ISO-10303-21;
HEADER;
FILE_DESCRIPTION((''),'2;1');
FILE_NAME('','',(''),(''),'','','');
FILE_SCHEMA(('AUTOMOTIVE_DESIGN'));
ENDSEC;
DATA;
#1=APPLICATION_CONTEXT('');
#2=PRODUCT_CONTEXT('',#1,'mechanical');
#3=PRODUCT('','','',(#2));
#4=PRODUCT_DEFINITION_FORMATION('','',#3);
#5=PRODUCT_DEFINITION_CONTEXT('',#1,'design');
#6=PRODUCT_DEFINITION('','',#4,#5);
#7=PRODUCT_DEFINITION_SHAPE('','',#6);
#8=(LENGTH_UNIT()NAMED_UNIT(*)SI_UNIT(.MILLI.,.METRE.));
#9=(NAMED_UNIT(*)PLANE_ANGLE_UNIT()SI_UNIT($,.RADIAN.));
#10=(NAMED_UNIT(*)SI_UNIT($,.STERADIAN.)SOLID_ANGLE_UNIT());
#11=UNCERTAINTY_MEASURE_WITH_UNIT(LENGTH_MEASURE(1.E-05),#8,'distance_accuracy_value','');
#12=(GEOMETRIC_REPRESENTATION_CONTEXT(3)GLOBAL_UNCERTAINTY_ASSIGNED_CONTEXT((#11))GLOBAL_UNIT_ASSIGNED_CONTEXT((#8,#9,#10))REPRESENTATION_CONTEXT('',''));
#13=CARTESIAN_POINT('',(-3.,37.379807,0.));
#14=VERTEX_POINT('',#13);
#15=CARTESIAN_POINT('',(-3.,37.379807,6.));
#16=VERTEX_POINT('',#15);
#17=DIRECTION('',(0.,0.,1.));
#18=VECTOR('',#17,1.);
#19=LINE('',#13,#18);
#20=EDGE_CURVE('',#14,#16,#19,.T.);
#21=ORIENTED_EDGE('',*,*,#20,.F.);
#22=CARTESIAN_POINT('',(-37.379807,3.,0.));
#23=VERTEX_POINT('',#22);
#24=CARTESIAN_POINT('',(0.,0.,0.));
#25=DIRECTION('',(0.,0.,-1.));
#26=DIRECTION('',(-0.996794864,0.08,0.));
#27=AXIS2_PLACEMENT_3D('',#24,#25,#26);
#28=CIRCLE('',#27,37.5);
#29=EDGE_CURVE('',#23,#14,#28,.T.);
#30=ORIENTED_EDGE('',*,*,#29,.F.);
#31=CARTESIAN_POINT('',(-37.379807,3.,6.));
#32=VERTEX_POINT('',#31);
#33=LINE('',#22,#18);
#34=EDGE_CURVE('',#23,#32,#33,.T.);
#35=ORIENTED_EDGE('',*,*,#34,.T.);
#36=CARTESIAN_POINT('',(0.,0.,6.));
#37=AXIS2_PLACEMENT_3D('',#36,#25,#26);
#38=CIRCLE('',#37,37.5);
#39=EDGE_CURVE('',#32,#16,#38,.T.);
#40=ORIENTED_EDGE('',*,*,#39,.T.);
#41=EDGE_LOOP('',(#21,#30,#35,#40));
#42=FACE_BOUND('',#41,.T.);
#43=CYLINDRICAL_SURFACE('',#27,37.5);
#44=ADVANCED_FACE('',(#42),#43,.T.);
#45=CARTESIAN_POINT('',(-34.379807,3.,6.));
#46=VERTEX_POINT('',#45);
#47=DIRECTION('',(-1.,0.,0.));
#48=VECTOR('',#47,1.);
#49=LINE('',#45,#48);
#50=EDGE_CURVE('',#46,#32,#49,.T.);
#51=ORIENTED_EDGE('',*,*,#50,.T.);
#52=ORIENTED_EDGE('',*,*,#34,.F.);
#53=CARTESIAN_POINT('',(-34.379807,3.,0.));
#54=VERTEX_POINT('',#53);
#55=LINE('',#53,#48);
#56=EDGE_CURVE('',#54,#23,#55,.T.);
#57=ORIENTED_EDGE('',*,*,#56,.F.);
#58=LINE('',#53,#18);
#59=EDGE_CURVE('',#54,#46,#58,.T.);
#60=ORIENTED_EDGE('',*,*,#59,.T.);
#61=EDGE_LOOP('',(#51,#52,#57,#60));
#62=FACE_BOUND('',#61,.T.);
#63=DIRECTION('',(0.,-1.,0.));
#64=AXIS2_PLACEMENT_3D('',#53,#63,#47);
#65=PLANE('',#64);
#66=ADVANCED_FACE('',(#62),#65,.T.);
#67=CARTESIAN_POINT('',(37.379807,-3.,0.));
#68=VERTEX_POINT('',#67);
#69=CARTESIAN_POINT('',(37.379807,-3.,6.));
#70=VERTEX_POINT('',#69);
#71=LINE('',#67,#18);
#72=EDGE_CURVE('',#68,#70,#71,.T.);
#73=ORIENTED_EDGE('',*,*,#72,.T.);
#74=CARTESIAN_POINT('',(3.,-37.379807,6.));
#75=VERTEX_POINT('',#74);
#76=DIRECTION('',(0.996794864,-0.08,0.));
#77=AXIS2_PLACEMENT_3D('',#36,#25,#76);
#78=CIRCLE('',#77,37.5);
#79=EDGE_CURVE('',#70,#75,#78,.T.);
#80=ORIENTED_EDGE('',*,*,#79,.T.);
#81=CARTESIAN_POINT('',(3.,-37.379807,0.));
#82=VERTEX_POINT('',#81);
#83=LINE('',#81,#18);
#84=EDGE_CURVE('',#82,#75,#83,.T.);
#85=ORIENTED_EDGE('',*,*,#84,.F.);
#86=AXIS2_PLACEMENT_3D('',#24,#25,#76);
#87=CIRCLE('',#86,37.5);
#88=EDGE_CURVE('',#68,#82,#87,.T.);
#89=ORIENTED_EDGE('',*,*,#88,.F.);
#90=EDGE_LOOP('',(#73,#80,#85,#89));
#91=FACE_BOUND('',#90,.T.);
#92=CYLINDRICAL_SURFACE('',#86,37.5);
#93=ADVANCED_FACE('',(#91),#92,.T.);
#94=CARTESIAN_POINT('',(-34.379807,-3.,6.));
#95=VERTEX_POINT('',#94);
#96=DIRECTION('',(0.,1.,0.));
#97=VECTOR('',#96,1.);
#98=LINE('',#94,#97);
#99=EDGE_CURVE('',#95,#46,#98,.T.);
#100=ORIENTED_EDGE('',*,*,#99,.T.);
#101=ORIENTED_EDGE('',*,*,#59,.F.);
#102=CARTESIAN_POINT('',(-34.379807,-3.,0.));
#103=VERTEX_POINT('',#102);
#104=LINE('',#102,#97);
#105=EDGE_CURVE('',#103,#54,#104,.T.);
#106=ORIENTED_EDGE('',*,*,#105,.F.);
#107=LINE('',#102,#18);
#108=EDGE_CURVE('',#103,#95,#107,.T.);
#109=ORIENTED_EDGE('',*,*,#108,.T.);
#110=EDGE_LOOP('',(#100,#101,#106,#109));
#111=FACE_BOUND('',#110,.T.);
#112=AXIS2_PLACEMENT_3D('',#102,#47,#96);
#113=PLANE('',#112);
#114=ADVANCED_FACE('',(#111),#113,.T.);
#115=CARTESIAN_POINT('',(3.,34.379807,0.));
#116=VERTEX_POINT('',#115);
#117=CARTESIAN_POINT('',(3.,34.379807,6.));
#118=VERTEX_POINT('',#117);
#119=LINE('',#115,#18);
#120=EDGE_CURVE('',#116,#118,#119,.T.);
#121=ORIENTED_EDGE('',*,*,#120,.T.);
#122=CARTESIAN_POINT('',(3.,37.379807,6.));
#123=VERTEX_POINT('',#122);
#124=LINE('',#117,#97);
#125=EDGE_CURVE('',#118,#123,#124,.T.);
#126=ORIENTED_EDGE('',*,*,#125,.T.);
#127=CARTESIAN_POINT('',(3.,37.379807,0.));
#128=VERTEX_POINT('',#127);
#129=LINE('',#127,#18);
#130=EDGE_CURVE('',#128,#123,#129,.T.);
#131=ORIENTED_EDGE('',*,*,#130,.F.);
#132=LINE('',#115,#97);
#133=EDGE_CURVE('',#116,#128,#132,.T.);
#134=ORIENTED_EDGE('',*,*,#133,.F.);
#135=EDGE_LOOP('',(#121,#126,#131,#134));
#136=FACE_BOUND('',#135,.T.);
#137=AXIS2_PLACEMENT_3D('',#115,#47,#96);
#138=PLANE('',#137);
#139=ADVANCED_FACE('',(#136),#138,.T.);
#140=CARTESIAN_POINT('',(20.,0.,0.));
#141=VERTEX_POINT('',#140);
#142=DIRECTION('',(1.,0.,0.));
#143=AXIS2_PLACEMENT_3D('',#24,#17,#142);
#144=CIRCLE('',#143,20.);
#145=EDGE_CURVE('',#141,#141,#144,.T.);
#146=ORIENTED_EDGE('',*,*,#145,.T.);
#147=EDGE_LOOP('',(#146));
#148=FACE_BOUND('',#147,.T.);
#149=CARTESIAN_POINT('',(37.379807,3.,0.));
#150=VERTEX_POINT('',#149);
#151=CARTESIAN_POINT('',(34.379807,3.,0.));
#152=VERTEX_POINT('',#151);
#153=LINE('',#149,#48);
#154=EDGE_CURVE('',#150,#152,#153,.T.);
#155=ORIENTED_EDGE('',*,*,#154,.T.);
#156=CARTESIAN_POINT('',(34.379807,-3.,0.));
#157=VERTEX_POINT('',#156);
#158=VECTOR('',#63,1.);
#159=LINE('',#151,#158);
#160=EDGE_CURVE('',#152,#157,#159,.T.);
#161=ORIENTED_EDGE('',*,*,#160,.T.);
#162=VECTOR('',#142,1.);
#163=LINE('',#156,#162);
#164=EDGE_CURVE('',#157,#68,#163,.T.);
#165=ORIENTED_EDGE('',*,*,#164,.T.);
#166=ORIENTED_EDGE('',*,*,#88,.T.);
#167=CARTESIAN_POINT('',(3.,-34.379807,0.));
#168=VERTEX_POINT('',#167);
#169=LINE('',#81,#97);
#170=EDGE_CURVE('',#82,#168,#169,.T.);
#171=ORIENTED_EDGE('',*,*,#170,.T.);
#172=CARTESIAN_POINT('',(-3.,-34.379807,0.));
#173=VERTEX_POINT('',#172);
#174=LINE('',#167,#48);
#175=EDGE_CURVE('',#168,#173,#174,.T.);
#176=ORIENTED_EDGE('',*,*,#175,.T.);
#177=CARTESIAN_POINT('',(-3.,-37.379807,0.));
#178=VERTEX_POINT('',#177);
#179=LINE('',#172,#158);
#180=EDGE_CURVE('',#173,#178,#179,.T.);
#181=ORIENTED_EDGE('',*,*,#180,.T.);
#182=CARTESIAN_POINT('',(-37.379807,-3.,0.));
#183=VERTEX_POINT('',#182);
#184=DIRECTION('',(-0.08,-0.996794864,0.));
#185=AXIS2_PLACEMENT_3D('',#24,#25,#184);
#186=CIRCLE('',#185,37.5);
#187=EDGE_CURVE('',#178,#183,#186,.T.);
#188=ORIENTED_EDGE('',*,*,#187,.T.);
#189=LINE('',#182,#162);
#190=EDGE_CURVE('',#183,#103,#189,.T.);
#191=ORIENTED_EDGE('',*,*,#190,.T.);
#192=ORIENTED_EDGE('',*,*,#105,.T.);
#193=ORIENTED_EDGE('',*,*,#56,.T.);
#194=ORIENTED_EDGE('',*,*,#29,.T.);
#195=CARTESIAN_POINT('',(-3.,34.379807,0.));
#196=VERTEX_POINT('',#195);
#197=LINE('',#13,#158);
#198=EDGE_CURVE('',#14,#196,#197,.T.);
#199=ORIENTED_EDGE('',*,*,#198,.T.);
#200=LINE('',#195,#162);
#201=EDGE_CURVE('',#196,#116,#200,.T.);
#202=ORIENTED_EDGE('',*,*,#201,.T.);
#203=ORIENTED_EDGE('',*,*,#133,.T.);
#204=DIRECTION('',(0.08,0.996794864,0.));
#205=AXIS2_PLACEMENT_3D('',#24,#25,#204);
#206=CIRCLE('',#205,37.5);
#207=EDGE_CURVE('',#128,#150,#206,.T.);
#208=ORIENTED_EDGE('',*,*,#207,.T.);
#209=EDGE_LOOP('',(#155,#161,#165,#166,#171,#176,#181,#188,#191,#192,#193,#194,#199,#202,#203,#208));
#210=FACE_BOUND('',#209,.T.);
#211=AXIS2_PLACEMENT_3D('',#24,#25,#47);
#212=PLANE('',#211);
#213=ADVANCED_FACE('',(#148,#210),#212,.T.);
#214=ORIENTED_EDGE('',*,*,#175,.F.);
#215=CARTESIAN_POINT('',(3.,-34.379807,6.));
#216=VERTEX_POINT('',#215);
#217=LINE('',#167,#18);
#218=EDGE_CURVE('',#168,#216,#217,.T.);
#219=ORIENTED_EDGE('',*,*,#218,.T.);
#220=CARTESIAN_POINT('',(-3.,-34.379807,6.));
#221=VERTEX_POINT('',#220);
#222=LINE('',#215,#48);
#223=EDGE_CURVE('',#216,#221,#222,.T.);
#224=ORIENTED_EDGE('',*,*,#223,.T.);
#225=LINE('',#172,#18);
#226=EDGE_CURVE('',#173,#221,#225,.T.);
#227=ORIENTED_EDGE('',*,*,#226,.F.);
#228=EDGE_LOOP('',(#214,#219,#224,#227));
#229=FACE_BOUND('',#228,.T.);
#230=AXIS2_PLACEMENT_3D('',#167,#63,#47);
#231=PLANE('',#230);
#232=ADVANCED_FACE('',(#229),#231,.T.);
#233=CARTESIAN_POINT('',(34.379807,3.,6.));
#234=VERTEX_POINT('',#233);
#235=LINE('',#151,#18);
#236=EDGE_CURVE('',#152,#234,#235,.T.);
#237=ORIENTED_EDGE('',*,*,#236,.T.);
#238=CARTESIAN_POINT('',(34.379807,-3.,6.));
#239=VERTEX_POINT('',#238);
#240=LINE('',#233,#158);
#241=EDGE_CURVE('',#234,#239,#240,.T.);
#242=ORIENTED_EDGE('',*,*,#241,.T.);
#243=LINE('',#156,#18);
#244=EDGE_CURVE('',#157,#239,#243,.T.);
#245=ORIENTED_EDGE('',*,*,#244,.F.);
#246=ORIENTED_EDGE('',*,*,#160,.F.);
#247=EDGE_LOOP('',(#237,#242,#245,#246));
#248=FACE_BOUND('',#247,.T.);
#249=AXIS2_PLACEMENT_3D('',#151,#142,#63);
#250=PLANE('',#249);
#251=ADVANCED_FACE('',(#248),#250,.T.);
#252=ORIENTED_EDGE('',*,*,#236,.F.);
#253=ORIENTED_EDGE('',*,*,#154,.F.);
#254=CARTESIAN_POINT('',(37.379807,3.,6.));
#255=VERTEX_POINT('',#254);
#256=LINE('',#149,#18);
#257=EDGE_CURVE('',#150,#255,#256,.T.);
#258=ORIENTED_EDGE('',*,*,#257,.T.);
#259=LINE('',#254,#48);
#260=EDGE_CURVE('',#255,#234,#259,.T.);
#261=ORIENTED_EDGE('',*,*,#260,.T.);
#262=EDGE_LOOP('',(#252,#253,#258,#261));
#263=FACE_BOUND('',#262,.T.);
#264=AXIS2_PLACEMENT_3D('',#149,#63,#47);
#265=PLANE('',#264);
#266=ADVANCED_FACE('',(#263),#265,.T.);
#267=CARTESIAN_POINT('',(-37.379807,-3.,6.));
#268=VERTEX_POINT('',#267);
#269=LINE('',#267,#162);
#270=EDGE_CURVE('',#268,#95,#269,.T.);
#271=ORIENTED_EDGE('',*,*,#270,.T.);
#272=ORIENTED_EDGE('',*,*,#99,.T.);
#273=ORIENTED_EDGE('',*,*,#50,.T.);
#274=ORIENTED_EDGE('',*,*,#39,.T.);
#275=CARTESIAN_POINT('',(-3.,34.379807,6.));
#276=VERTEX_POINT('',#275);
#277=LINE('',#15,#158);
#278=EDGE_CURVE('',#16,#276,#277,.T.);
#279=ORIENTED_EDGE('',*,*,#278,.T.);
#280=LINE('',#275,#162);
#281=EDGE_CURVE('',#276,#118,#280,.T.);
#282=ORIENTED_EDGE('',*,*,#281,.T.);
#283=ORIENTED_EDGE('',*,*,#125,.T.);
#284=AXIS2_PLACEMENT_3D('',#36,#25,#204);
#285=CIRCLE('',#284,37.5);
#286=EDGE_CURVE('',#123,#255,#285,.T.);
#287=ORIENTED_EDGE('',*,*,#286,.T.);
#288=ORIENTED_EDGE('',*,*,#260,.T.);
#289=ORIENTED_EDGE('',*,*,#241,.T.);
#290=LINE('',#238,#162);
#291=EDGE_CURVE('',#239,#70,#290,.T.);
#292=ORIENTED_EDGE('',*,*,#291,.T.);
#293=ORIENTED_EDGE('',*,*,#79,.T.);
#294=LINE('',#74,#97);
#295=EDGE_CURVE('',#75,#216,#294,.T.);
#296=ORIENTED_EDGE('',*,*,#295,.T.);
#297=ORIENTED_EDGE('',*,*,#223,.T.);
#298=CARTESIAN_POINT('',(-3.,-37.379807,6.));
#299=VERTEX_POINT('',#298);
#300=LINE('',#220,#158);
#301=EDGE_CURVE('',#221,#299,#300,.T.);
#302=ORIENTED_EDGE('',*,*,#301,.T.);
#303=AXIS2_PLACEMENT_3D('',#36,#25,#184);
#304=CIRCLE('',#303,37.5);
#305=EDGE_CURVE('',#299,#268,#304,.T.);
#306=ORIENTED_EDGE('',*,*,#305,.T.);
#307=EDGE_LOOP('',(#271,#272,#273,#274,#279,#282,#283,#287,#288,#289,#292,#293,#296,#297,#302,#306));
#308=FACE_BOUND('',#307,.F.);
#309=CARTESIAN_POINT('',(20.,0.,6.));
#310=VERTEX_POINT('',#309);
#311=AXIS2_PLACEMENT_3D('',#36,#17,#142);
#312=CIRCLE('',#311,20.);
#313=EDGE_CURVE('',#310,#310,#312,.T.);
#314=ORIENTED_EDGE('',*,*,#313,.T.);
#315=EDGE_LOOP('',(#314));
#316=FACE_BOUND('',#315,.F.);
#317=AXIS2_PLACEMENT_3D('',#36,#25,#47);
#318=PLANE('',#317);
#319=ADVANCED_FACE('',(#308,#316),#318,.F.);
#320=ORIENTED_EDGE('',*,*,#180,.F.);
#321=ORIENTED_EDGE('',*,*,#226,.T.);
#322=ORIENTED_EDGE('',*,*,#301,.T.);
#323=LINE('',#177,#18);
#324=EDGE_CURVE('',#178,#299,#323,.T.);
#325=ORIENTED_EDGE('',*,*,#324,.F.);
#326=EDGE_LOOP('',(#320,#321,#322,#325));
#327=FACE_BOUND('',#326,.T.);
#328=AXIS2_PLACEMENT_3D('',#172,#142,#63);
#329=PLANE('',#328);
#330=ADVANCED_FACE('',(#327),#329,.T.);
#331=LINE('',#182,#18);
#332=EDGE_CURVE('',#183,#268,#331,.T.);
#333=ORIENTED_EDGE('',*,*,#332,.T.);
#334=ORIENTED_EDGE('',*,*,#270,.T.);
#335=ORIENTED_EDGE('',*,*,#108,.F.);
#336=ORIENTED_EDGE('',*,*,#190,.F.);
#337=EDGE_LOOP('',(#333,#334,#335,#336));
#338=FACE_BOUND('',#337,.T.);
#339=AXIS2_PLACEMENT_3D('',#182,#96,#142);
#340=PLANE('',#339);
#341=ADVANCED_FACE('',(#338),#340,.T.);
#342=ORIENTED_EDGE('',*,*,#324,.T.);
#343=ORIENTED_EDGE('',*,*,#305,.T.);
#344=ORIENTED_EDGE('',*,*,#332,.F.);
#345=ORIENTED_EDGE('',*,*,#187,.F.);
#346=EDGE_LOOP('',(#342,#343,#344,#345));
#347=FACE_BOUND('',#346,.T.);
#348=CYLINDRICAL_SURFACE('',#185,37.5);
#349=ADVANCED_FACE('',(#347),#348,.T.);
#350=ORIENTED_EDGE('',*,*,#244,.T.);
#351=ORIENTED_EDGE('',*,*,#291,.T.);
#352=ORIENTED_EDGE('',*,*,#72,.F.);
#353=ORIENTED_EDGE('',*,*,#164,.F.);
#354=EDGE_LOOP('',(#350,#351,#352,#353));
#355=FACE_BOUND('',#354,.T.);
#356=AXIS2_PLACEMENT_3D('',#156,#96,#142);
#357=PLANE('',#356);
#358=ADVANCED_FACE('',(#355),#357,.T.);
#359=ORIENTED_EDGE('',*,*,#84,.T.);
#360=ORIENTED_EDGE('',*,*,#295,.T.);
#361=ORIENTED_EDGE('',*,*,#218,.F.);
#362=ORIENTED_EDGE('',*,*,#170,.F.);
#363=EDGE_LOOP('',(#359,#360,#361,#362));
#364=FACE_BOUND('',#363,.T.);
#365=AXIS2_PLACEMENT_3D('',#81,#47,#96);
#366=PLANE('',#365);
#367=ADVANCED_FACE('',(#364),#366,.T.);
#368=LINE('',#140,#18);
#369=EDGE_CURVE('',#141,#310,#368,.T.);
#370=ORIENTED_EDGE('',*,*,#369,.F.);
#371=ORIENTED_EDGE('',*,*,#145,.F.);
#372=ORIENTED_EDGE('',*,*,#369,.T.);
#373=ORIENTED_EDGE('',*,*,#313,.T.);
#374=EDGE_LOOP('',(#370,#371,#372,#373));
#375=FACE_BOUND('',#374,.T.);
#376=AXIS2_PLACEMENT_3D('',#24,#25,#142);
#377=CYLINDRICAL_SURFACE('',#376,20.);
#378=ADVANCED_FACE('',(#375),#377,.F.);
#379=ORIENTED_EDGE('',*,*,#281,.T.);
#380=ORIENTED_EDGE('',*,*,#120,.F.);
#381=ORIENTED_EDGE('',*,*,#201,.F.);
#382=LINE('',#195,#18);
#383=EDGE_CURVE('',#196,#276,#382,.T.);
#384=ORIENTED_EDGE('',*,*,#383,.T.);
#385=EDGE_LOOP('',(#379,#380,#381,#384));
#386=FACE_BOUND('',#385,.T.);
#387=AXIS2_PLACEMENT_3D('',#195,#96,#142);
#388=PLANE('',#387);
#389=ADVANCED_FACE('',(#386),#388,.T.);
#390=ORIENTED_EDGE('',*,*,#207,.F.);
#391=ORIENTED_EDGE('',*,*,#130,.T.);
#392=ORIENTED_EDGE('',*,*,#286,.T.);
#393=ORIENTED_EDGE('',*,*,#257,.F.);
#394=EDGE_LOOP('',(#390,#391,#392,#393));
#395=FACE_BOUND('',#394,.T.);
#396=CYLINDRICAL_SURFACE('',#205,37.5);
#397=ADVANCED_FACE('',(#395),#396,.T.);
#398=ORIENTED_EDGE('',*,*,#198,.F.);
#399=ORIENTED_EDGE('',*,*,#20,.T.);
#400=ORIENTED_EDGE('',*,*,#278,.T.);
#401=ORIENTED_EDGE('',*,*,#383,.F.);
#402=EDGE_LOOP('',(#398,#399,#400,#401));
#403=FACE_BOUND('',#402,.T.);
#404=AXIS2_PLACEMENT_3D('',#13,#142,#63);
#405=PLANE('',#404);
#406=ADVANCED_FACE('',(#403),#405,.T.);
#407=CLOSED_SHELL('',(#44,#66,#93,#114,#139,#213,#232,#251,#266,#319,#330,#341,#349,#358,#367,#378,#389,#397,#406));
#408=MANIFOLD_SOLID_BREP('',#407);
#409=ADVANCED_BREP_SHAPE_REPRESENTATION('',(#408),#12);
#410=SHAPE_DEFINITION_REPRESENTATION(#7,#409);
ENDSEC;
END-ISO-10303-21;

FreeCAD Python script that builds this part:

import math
import FreeCAD as App
import Part
import Sketcher

V = App.Vector
Q = App.Units.Quantity

doc = App.newDocument("Part")
body = doc.addObject("PartDesign::Body", "Body")

# Sketch on XY plane
sketch1 = body.newObject("Sketcher::SketchObject", "Sketch")
sketch1.AttachmentSupport = (doc.getObject("XY_Plane"), [""])
sketch1.MapMode = "FlatFace"
sketch1.addGeometry([
    Part.LineSegment(V(37.4, -3, 0), V(34.4, -3, 0)),  # 0
    Part.LineSegment(V(34.4, -3, 0), V(34.4, 3, 0)),  # 1
    Part.LineSegment(V(34.4, 3, 0), V(37.4, 3, 0)),  # 2
    Part.ArcOfCircle(Part.Circle(V(0, 0, 0), V(0, 0, 1), 37.5), math.radians(5), math.radians(85)),  # 3
    Part.LineSegment(V(3, 37.4, 0), V(3, 34.4, 0)),  # 4
    Part.LineSegment(V(3, 34.4, 0), V(-3, 34.4, 0)),  # 5
    Part.LineSegment(V(-3, 34.4, 0), V(-3, 37.4, 0)),  # 6
    Part.ArcOfCircle(Part.Circle(V(0, 0, 0), V(0, 0, 1), 37.5), math.radians(95), math.radians(175)),  # 7
    Part.LineSegment(V(-37.4, 3, 0), V(-34.4, 3, 0)),  # 8
    Part.LineSegment(V(-34.4, 3, 0), V(-34.4, -3, 0)),  # 9
    Part.LineSegment(V(-34.4, -3, 0), V(-37.4, -3, 0)),  # 10
    Part.ArcOfCircle(Part.Circle(V(0, 0, 0), V(0, 0, 1), 37.5), math.radians(-175), math.radians(-95)),  # 11
    Part.LineSegment(V(-3, -37.4, 0), V(-3, -34.4, 0)),  # 12
    Part.LineSegment(V(-3, -34.4, 0), V(3, -34.4, 0)),  # 13
    Part.LineSegment(V(3, -34.4, 0), V(3, -37.4, 0)),  # 14
    Part.ArcOfCircle(Part.Circle(V(0, 0, 0), V(0, 0, 1), 37.5), math.radians(-85), math.radians(-5)),  # 15
    Part.Circle(V(0, 0, 0), V(0, 0, 1), 20),  # 16
], False)
sketch1.addConstraint([
    Sketcher.Constraint("Coincident", 0, 2, 1, 1),
    Sketcher.Constraint("Coincident", 1, 2, 2, 1),
    Sketcher.Constraint("Coincident", 2, 2, 3, 1),
    Sketcher.Constraint("Coincident", 3, 2, 4, 1),
    Sketcher.Constraint("Coincident", 4, 2, 5, 1),
    Sketcher.Constraint("Coincident", 5, 2, 6, 1),
    Sketcher.Constraint("Coincident", 6, 2, 7, 1),
    Sketcher.Constraint("Coincident", 7, 2, 8, 1),
    Sketcher.Constraint("Coincident", 8, 2, 9, 1),
    Sketcher.Constraint("Coincident", 9, 2, 10, 1),
    Sketcher.Constraint("Coincident", 10, 2, 11, 1),
    Sketcher.Constraint("Coincident", 11, 2, 12, 1),
    Sketcher.Constraint("Coincident", 12, 2, 13, 1),
    Sketcher.Constraint("Coincident", 13, 2, 14, 1),
    Sketcher.Constraint("Coincident", 14, 2, 15, 1),
    Sketcher.Constraint("Coincident", 15, 2, 0, 1),
    Sketcher.Constraint("Horizontal", 0),
    Sketcher.Constraint("Vertical", 1),
    Sketcher.Constraint("Horizontal", 2),
    Sketcher.Constraint("Vertical", 4),
    Sketcher.Constraint("Horizontal", 5),
    Sketcher.Constraint("Vertical", 6),
    Sketcher.Constraint("Horizontal", 8),
    Sketcher.Constraint("Vertical", 9),
    Sketcher.Constraint("Horizontal", 10),
    Sketcher.Constraint("Vertical", 12),
    Sketcher.Constraint("Horizontal", 13),
    Sketcher.Constraint("Vertical", 14),
    Sketcher.Constraint("Coincident", 3, 3, -1, 1),
    Sketcher.Constraint("Coincident", 7, 3, -1, 1),
    Sketcher.Constraint("Coincident", 11, 3, -1, 1),
    Sketcher.Constraint("Coincident", 15, 3, -1, 1),
    Sketcher.Constraint("Coincident", 16, 3, -1, 1),
    Sketcher.Constraint("Equal", 3, 7),
    Sketcher.Constraint("Equal", 7, 11),
    Sketcher.Constraint("Equal", 11, 15),
    Sketcher.Constraint("Symmetric", 0, 2, 8, 2, -1, 1),
    Sketcher.Constraint("Symmetric", 4, 2, 12, 2, -1, 1),
    Sketcher.Constraint("Horizontal", 3, 2, 6, 2),
    Sketcher.Constraint("Horizontal", 2, 2, 7, 2),
    Sketcher.Constraint("Horizontal", 0, 2, 9, 2),
    Sketcher.Constraint("Horizontal", 11, 2, 14, 2),
    Sketcher.Constraint("Equal", 13, 1),
    Sketcher.Constraint("Equal", 10, 4),
    Sketcher.Constraint("Diameter", 16, Q("40 mm")),
    Sketcher.Constraint("Radius", 3, Q("37.5 mm")),
    Sketcher.Constraint("DistanceX", 0, 2, 0, 1, Q("3 mm")),
    Sketcher.Constraint("DistanceX", 5, 2, 5, 1, Q("6 mm")),
])
pad1 = body.newObject("PartDesign::Pad", "Pad")
pad1.Profile = sketch1
pad1.Length = 6

doc.recompute()
